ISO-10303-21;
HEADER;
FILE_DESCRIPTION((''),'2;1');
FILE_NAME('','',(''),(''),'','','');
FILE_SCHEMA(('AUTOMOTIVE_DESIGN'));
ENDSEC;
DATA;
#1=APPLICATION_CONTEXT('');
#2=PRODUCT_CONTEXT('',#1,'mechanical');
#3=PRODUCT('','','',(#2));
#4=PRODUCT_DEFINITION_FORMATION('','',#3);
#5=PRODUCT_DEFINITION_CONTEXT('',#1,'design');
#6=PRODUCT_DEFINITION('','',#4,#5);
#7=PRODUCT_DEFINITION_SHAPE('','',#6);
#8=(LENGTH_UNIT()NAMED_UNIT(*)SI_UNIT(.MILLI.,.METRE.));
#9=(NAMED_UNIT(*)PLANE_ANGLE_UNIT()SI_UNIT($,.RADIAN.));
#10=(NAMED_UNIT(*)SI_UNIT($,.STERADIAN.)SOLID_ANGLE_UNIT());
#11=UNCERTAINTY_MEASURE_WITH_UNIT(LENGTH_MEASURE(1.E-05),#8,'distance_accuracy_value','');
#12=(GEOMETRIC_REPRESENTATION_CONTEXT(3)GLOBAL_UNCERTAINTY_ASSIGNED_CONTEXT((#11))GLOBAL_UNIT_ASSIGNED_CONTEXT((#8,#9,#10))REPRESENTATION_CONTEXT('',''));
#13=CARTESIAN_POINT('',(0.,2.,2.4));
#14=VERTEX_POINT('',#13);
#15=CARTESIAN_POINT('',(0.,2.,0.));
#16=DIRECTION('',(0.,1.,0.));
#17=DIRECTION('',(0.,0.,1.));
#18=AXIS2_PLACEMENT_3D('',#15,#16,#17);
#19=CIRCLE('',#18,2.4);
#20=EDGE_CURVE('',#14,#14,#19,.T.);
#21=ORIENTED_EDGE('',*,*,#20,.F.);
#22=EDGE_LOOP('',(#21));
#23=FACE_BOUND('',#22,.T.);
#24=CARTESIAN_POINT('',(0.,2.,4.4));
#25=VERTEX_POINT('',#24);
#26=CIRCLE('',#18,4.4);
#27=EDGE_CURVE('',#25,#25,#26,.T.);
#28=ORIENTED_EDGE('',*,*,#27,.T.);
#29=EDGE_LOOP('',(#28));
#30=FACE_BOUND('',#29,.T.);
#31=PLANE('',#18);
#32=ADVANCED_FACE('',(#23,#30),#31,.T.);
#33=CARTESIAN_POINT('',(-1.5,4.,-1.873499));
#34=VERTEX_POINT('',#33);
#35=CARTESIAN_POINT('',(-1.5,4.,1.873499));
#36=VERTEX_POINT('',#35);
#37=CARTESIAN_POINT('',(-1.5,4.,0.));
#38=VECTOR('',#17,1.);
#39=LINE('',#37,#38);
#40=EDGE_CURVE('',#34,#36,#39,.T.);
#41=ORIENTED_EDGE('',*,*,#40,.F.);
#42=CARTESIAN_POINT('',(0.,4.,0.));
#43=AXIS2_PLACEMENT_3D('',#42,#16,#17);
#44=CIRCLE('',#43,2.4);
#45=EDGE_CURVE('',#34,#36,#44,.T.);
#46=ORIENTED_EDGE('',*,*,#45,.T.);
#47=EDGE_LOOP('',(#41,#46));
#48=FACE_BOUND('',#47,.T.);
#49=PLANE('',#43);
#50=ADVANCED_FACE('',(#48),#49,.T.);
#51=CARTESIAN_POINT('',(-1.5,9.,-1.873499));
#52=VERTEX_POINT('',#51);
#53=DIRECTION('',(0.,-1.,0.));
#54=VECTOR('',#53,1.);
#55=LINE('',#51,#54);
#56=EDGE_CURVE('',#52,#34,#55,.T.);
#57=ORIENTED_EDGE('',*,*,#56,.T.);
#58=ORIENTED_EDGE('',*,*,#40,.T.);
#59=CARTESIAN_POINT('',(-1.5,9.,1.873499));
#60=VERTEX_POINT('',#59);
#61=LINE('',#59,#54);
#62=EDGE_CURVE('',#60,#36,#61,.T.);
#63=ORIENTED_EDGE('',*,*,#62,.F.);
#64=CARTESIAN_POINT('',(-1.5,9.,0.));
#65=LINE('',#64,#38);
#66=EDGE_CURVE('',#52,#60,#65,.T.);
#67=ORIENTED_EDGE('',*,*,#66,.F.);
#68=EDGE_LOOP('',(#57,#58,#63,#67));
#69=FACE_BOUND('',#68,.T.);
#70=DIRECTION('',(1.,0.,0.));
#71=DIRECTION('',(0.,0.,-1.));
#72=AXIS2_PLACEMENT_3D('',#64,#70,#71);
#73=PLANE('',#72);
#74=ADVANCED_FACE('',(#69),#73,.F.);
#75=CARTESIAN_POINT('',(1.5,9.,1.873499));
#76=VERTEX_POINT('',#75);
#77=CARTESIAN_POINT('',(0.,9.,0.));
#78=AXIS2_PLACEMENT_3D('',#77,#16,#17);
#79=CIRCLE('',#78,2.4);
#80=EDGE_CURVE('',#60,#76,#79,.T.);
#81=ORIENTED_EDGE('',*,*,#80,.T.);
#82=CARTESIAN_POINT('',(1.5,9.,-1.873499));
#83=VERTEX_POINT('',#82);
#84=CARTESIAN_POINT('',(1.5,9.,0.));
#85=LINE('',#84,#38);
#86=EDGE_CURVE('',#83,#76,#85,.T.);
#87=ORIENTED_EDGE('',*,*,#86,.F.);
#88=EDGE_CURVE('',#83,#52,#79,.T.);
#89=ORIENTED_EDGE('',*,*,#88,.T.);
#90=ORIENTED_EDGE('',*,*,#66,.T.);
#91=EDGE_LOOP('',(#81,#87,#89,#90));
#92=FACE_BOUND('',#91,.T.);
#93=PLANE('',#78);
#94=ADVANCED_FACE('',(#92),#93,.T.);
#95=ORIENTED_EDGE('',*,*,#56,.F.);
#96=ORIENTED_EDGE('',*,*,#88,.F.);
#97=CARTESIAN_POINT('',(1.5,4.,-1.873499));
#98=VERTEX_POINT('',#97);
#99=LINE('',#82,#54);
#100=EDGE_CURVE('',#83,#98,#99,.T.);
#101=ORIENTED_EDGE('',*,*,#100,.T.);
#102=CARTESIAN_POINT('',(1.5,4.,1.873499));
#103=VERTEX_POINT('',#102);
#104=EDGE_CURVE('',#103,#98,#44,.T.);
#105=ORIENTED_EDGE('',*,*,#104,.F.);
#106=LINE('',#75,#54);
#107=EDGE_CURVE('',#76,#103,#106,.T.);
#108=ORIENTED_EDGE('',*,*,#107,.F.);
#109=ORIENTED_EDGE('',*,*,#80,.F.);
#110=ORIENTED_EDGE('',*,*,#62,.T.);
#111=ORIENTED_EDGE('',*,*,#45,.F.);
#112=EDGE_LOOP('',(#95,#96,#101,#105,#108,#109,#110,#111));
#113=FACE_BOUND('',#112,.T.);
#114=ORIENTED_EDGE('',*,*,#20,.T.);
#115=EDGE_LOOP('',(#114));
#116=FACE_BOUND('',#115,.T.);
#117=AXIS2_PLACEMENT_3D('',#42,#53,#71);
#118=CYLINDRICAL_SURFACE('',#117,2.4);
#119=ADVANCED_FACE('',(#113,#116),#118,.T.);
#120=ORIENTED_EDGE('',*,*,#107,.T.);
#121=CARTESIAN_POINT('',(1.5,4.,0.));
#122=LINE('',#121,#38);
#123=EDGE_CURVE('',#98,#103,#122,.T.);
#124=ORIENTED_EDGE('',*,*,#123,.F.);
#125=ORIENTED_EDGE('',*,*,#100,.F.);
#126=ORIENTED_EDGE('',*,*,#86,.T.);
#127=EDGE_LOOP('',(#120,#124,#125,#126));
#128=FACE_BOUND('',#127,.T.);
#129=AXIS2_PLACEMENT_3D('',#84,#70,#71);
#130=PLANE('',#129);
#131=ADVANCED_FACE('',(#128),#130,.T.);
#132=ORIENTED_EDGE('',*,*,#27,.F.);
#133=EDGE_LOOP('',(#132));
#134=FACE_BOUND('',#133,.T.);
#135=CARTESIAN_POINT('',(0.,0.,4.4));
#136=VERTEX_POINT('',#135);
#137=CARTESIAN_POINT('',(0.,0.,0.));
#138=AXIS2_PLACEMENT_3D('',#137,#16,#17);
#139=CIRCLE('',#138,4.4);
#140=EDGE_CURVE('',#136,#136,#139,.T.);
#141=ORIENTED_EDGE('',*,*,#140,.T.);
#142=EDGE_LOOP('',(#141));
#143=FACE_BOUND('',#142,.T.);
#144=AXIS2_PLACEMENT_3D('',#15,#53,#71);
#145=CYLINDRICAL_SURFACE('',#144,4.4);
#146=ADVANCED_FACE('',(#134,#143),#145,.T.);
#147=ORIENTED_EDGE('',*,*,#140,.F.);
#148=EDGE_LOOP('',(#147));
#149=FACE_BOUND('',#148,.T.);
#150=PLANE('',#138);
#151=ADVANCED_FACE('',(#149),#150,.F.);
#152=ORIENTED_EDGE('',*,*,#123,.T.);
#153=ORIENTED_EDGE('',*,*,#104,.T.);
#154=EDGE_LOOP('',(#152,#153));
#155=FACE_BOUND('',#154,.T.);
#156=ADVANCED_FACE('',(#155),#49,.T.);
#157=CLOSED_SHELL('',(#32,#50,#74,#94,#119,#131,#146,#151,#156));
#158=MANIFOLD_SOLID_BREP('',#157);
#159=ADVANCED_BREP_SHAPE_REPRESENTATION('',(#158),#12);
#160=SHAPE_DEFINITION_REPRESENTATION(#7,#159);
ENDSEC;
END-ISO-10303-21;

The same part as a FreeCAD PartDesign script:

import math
import FreeCAD as App
import Part
import Sketcher
from FreeCAD import Vector

doc = App.newDocument("Part")
body = doc.addObject("PartDesign::Body", "Body")

sketch1 = body.newObject("Sketcher::SketchObject", "Sketch")
sketch1.AttachmentSupport = (doc.getObject("XZ_Plane"), [""])
sketch1.MapMode = "FlatFace"
sketch1.addGeometry(Part.Circle(Vector(0, 0, 0), Vector(0, 0, 1), 4.4), False)
sketch1.addConstraint(Sketcher.Constraint("Coincident", 0, 3, -1, 1))
sketch1.addConstraint(Sketcher.Constraint("Diameter", 0, 8.8))
pad1 = body.newObject("PartDesign::Pad", "Pad")
pad1.Profile = sketch1
pad1.Length = 2
pad1.Reversed = True

sketch2 = body.newObject("Sketcher::SketchObject", "Sketch001")
sketch2.AttachmentSupport = (doc.getObject("XZ_Plane"), [""])
sketch2.MapMode = "FlatFace"
sketch2.AttachmentOffset = App.Placement(Vector(0, 0, -2), App.Rotation())
sketch2.addGeometry(Part.Circle(Vector(0, 0, 0), Vector(0, 0, 1), 2.4), False)
sketch2.addConstraint(Sketcher.Constraint("Coincident", 0, 3, -1, 1))
sketch2.addConstraint(Sketcher.Constraint("Diameter", 0, 4.8))
pad2 = body.newObject("PartDesign::Pad", "Pad001")
pad2.Profile = sketch2
pad2.Length = 2
pad2.Reversed = True

sketch3 = body.newObject("Sketcher::SketchObject", "Sketch002")
sketch3.AttachmentSupport = (doc.getObject("XZ_Plane"), [""])
sketch3.MapMode = "FlatFace"
sketch3.AttachmentOffset = App.Placement(Vector(0, 0, -4), App.Rotation())
sketch3.addGeometry(Part.ArcOfCircle(Part.Circle(Vector(0, 0, 0), Vector(0, 0, 1), 2.4), math.radians(-129), math.radians(-51)), False)
sketch3.addGeometry(Part.LineSegment(Vector(-1.5, -1.9, 0), Vector(-1.5, 1.9, 0)), False)
sketch3.addGeometry(Part.ArcOfCircle(Part.Circle(Vector(0, 0, 0), Vector(0, 0, 1), 2.4), math.radians(51), math.radians(129)), False)
sketch3.addGeometry(Part.LineSegment(Vector(1.5, 1.9, 0), Vector(1.5, -1.9, 0)), False)
sketch3.addConstraint(Sketcher.Constraint("Coincident", 0, 1, 1, 1))
sketch3.addConstraint(Sketcher.Constraint("Coincident", 1, 2, 2, 2))
sketch3.addConstraint(Sketcher.Constraint("Coincident", 2, 1, 3, 1))
sketch3.addConstraint(Sketcher.Constraint("Coincident", 3, 2, 0, 2))
sketch3.addConstraint(Sketcher.Constraint("Vertical", 1))
sketch3.addConstraint(Sketcher.Constraint("Vertical", 3))
sketch3.addConstraint(Sketcher.Constraint("Coincident", 0, 3, -1, 1))
sketch3.addConstraint(Sketcher.Constraint("Coincident", 2, 3, -1, 1))
sketch3.addConstraint(Sketcher.Constraint("Equal", 0, 2))
sketch3.addConstraint(Sketcher.Constraint("Horizontal", 1, 2, 2, 1))
sketch3.addConstraint(Sketcher.Constraint("Radius", 0, 2.4))
sketch3.addConstraint(Sketcher.Constraint("DistanceX", 1, 2, 2, 1, 3.0))
pad3 = body.newObject("PartDesign::Pad", "Pad002")
pad3.Profile = sketch3
pad3.Length = 5
pad3.Reversed = True

doc.recompute()
